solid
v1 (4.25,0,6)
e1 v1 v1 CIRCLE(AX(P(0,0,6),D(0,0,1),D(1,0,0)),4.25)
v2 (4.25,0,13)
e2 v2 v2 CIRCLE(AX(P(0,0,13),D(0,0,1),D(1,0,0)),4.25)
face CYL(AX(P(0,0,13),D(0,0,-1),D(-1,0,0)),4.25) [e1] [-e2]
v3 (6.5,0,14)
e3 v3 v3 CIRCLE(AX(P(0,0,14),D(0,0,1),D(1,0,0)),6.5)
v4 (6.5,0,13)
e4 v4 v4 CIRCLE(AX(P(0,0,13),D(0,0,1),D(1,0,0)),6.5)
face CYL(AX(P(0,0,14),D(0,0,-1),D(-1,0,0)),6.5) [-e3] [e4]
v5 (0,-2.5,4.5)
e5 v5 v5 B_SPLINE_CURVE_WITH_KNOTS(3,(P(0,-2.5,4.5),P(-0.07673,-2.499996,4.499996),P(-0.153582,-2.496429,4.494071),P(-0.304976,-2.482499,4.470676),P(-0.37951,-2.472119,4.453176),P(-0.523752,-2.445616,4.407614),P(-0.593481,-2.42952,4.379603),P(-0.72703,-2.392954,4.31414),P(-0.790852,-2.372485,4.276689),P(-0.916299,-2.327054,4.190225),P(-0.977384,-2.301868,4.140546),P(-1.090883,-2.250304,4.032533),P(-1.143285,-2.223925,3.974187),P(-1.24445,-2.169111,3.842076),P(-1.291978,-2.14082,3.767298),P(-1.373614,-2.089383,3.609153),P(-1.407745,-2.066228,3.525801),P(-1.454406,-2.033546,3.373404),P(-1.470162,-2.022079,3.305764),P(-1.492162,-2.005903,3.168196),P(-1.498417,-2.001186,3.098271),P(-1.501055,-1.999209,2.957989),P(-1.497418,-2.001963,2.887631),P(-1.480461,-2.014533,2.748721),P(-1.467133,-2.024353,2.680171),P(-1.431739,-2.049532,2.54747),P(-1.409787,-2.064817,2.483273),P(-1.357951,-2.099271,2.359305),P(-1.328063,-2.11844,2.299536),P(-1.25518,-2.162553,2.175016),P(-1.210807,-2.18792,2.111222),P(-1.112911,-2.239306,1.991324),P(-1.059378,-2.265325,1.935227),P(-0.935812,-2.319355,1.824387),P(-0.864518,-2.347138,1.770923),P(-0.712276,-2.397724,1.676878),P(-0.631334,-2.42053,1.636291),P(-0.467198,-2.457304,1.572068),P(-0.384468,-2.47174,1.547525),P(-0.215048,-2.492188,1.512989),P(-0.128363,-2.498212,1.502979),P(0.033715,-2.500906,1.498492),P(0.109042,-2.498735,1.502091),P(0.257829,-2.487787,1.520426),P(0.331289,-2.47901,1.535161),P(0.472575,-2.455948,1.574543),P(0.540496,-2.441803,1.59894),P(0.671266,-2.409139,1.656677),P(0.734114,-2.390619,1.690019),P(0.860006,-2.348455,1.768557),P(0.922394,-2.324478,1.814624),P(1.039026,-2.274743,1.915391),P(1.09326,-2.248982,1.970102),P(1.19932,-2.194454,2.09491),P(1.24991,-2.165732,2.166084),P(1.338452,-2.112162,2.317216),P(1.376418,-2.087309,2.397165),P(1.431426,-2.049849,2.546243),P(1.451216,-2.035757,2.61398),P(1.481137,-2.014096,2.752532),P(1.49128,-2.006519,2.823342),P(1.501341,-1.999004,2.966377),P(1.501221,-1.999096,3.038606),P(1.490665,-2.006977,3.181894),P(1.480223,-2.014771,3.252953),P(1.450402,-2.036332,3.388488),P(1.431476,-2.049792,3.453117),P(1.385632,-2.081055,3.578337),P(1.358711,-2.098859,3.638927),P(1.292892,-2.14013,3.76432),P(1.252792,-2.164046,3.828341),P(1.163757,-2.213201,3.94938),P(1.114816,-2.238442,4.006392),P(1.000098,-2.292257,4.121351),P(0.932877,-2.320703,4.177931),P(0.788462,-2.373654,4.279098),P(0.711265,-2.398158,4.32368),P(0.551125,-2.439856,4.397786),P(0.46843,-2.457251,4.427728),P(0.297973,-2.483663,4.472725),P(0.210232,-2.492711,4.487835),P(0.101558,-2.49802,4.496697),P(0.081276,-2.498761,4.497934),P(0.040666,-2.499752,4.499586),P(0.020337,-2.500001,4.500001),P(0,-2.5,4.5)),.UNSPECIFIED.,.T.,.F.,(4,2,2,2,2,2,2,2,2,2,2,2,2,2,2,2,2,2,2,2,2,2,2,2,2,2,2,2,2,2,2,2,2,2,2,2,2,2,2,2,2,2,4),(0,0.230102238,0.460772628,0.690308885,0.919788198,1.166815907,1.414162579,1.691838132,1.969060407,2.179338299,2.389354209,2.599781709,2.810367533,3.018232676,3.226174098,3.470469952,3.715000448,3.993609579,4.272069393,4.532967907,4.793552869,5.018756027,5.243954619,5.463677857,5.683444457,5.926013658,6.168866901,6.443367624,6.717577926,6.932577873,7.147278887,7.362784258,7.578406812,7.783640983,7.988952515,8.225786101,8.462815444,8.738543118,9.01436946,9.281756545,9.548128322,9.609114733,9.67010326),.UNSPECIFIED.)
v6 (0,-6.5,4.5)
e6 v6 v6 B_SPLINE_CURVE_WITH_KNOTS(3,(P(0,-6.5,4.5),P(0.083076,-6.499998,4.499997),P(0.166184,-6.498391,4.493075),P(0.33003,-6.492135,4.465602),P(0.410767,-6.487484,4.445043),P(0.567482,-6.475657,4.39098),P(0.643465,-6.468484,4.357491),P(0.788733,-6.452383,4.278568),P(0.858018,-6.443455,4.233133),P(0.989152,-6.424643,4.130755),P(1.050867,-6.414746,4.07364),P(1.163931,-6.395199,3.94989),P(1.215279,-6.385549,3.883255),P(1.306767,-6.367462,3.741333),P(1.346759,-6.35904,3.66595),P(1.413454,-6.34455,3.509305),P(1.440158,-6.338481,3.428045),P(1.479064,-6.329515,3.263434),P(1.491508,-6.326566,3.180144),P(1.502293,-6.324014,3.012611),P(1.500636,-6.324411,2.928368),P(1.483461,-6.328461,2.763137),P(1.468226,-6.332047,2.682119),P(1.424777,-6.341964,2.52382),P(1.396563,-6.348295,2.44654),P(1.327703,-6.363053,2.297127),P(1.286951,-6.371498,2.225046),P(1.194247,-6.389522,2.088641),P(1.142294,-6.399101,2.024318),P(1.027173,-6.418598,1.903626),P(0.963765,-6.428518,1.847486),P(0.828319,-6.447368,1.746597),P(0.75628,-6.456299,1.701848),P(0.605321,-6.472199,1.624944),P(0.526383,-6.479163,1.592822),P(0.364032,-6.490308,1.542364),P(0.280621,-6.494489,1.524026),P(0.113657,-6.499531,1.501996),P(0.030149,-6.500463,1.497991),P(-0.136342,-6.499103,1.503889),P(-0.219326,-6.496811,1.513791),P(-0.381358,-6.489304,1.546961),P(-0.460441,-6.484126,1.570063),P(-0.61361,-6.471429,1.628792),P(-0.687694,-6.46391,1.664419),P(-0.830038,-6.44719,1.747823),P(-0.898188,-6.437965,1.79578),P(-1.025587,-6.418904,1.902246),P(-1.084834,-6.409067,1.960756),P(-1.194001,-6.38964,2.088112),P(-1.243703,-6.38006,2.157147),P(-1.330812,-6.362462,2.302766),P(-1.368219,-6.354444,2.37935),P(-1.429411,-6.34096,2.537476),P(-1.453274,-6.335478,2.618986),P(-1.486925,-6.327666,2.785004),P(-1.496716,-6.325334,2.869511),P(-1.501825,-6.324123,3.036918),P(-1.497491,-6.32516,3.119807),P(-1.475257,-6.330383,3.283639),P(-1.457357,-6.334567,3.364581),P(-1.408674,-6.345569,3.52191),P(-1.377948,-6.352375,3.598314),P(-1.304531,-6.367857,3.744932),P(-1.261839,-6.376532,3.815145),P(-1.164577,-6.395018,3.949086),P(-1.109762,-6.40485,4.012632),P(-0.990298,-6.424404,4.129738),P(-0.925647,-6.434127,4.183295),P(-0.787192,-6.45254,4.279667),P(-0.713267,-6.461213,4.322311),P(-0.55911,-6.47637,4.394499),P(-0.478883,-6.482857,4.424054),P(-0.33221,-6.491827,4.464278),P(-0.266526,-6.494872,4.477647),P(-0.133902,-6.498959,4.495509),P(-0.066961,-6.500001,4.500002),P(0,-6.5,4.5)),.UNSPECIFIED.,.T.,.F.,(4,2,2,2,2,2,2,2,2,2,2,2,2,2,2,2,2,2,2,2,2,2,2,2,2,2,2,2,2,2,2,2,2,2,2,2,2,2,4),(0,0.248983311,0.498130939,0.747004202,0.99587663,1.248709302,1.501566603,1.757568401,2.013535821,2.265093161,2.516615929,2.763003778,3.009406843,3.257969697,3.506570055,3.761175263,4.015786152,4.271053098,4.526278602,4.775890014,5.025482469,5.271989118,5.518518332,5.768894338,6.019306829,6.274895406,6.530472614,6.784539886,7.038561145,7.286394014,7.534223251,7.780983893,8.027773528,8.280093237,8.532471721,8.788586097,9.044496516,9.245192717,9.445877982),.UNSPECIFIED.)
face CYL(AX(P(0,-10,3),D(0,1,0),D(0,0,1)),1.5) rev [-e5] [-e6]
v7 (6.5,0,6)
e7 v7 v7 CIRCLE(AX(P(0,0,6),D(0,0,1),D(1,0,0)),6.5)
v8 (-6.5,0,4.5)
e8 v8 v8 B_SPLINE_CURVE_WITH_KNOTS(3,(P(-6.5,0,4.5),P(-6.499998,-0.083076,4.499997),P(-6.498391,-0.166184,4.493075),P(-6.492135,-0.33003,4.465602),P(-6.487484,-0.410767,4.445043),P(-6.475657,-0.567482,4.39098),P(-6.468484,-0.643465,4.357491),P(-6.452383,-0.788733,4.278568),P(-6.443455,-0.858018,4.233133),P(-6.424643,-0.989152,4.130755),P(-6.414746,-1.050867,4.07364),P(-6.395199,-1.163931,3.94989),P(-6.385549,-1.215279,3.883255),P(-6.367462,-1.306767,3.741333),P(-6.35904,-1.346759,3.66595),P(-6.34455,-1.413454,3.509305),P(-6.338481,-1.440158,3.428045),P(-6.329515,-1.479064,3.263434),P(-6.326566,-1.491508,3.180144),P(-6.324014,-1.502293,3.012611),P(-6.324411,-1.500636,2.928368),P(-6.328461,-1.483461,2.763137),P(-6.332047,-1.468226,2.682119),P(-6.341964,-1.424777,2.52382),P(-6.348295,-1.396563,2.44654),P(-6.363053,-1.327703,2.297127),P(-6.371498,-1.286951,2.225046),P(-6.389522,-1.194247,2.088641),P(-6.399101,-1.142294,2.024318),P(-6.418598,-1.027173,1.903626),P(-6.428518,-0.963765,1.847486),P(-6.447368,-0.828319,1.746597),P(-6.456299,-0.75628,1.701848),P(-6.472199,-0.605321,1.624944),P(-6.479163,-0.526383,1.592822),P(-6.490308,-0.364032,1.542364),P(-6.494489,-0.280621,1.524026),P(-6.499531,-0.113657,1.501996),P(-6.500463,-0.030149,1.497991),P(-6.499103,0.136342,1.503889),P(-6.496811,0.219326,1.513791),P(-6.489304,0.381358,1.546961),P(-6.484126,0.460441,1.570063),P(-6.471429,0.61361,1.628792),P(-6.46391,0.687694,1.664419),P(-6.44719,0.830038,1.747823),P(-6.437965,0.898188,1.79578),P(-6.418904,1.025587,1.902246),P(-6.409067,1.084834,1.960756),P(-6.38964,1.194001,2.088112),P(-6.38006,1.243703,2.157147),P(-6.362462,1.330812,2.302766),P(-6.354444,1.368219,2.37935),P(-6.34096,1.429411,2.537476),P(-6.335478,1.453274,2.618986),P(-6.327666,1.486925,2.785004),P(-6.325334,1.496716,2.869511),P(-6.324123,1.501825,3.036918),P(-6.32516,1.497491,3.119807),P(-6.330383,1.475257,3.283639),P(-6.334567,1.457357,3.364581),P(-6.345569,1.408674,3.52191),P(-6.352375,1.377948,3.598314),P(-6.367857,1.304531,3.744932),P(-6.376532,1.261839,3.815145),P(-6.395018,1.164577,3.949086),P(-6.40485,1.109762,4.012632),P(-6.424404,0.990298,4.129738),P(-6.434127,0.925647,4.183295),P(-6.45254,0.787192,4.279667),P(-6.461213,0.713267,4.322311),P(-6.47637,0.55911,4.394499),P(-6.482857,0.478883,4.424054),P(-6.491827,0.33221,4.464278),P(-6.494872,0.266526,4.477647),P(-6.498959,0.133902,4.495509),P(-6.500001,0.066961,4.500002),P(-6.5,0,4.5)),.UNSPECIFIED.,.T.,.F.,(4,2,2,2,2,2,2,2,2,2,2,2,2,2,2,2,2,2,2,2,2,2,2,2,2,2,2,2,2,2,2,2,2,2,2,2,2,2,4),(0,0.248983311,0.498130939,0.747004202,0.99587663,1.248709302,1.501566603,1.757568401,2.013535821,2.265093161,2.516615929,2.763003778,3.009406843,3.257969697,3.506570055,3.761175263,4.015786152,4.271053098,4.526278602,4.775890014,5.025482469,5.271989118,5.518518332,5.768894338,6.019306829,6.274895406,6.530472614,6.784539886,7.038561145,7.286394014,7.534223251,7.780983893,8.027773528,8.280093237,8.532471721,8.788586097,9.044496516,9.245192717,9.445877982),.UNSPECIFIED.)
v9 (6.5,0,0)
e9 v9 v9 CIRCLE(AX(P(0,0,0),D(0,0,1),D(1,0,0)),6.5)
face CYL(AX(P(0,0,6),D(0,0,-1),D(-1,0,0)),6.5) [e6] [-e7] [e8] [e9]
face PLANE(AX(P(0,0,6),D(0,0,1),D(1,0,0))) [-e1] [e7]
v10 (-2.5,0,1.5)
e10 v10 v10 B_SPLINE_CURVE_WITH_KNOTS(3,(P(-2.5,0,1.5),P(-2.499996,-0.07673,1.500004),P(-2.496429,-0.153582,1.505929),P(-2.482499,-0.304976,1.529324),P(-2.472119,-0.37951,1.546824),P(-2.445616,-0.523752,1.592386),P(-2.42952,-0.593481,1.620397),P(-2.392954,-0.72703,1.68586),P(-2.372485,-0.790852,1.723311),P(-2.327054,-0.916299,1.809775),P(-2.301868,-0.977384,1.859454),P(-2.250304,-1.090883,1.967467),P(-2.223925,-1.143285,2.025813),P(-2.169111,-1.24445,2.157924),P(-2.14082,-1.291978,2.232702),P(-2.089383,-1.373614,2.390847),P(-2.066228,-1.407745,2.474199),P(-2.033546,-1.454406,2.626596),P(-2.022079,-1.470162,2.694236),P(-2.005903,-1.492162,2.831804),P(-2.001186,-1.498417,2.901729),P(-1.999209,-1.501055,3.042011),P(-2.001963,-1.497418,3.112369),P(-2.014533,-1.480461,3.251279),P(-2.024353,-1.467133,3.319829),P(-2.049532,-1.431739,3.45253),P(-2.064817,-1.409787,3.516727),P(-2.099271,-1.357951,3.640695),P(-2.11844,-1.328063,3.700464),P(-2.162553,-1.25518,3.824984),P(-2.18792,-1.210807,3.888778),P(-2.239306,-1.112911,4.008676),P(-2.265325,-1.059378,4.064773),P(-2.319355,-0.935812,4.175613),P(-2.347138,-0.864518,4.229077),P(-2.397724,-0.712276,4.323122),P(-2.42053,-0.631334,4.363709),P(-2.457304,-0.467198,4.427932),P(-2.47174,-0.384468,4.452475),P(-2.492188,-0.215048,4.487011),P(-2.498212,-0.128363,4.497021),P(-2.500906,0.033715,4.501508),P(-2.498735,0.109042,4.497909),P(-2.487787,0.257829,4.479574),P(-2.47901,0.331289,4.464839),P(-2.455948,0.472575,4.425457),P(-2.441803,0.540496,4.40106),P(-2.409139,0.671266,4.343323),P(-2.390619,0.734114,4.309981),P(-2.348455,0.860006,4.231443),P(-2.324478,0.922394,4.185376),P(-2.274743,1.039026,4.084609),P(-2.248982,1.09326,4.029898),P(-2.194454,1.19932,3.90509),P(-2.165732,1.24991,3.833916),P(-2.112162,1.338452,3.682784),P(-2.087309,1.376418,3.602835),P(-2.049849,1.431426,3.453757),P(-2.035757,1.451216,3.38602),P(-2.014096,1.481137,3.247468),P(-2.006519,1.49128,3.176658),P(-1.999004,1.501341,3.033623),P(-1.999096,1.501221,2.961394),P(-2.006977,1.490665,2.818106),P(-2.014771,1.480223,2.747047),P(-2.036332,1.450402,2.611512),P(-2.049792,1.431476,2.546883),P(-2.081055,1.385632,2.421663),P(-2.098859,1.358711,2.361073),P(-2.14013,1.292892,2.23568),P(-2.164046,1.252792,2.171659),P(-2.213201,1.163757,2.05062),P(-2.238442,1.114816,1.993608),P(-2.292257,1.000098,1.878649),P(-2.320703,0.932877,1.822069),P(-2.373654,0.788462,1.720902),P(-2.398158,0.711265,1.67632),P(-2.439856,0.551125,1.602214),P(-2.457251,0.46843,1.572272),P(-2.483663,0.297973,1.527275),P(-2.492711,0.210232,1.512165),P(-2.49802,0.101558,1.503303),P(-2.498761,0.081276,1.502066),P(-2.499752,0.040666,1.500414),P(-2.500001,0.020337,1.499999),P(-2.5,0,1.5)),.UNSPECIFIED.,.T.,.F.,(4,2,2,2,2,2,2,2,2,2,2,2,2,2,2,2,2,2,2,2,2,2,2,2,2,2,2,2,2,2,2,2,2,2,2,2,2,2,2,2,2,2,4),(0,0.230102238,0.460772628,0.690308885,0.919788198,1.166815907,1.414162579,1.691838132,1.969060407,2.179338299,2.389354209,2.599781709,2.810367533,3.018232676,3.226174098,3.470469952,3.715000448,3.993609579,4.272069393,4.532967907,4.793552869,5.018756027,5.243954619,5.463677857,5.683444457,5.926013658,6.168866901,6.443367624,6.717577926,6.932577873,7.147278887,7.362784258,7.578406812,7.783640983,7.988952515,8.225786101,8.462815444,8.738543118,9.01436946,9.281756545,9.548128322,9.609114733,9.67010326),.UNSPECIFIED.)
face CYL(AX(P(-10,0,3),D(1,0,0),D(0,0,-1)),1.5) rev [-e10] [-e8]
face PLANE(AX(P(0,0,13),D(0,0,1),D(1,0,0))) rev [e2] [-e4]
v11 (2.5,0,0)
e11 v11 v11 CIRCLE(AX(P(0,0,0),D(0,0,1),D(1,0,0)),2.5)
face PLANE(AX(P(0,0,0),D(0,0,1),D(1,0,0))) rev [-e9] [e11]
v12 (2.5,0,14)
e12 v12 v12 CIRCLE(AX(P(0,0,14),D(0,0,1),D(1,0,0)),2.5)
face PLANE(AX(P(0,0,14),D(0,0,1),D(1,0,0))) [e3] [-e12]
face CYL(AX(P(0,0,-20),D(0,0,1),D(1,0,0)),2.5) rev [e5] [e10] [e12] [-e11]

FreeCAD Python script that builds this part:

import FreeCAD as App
import Part
import Sketcher
from FreeCAD import Vector

doc = App.newDocument("Part")
body = doc.addObject("PartDesign::Body", "Body")

# Sketch on XY plane
sketch1 = body.newObject("Sketcher::SketchObject", "Sketch")
sketch1.AttachmentSupport = (doc.getObject("XY_Plane"), [""])
sketch1.MapMode = "FlatFace"
sketch1.addGeometry(Part.Circle(Vector(0, 0, 0), Vector(0, 0, 1), 6.5), False)
sketch1.addConstraint(Sketcher.Constraint("Coincident", 0, 3, -1, 1))
sketch1.addConstraint(Sketcher.Constraint("Diameter", 0, 13.0))
pad1 = body.newObject("PartDesign::Pad", "Pad")
pad1.Profile = sketch1
pad1.Length = 6

# Sketch on XY plane
sketch2 = body.newObject("Sketcher::SketchObject", "Sketch001")
sketch2.AttachmentSupport = (doc.getObject("XY_Plane"), [""])
sketch2.MapMode = "FlatFace"
sketch2.AttachmentOffset = App.Placement(Vector(0, 0, 6), App.Rotation())
sketch2.addGeometry(Part.Circle(Vector(0, 0, 0), Vector(0, 0, 1), 4.25), False)
sketch2.addConstraint(Sketcher.Constraint("Coincident", 0, 3, -1, 1))
sketch2.addConstraint(Sketcher.Constraint("Diameter", 0, 8.5))
pad2 = body.newObject("PartDesign::Pad", "Pad001")
pad2.Profile = sketch2
pad2.Length = 7

# Sketch on XY plane
sketch3 = body.newObject("Sketcher::SketchObject", "Sketch002")
sketch3.AttachmentSupport = (doc.getObject("XY_Plane"), [""])
sketch3.MapMode = "FlatFace"
sketch3.AttachmentOffset = App.Placement(Vector(0, 0, 13), App.Rotation())
sketch3.addGeometry(Part.Circle(Vector(0, 0, 0), Vector(0, 0, 1), 6.5), False)
sketch3.addConstraint(Sketcher.Constraint("Coincident", 0, 3, -1, 1))
sketch3.addConstraint(Sketcher.Constraint("Diameter", 0, 13.0))
pad3 = body.newObject("PartDesign::Pad", "Pad002")
pad3.Profile = sketch3
pad3.Length = 1

# Sketch on XY plane
sketch4 = body.newObject("Sketcher::SketchObject", "Sketch003")
sketch4.AttachmentSupport = (doc.getObject("XY_Plane"), [""])
sketch4.MapMode = "FlatFace"
sketch4.AttachmentOffset = App.Placement(Vector(0, 0, 14), App.Rotation())
sketch4.addGeometry(Part.Circle(Vector(0, 0, 0), Vector(0, 0, 1), 2.5), False)
sketch4.addConstraint(Sketcher.Constraint("Coincident", 0, 3, -1, 1))
sketch4.addConstraint(Sketcher.Constraint("Diameter", 0, 5.0))
pocket1 = body.newObject("PartDesign::Pocket", "Pocket")
pocket1.Profile = sketch4
pocket1.Length = 34

# Sketch on XZ plane
sketch5 = body.newObject("Sketcher::SketchObject", "Sketch004")
sketch5.AttachmentSupport = (doc.getObject("XZ_Plane"), [""])
sketch5.MapMode = "FlatFace"
sketch5.addGeometry(Part.Circle(Vector(0, 3, 0), Vector(0, 0, 1), 1.5), False)
sketch5.addConstraint(Sketcher.Constraint("PointOnObject", 0, 3, -2))
sketch5.addConstraint(Sketcher.Constraint("Diameter", 0, 3.0))
sketch5.addConstraint(Sketcher.Constraint("DistanceY", -1, 1, 0, 3, 3.0))
pocket2 = body.newObject("PartDesign::Pocket", "Pocket001")
pocket2.Profile = sketch5
pocket2.Length = 10
pocket2.Reversed = True

# Sketch on YZ plane
sketch6 = body.newObject("Sketcher::SketchObject", "Sketch005")
sketch6.AttachmentSupport = (doc.getObject("YZ_Plane"), [""])
sketch6.MapMode = "FlatFace"
sketch6.addGeometry(Part.Circle(Vector(0, 3, 0), Vector(0, 0, 1), 1.5), False)
sketch6.addConstraint(Sketcher.Constraint("PointOnObject", 0, 3, -2))
sketch6.addConstraint(Sketcher.Constraint("Diameter", 0, 3.0))
sketch6.addConstraint(Sketcher.Constraint("DistanceY", -1, 1, 0, 3, 3.0))
pocket3 = body.newObject("PartDesign::Pocket", "Pocket002")
pocket3.Profile = sketch6
pocket3.Length = 10

doc.recompute()
